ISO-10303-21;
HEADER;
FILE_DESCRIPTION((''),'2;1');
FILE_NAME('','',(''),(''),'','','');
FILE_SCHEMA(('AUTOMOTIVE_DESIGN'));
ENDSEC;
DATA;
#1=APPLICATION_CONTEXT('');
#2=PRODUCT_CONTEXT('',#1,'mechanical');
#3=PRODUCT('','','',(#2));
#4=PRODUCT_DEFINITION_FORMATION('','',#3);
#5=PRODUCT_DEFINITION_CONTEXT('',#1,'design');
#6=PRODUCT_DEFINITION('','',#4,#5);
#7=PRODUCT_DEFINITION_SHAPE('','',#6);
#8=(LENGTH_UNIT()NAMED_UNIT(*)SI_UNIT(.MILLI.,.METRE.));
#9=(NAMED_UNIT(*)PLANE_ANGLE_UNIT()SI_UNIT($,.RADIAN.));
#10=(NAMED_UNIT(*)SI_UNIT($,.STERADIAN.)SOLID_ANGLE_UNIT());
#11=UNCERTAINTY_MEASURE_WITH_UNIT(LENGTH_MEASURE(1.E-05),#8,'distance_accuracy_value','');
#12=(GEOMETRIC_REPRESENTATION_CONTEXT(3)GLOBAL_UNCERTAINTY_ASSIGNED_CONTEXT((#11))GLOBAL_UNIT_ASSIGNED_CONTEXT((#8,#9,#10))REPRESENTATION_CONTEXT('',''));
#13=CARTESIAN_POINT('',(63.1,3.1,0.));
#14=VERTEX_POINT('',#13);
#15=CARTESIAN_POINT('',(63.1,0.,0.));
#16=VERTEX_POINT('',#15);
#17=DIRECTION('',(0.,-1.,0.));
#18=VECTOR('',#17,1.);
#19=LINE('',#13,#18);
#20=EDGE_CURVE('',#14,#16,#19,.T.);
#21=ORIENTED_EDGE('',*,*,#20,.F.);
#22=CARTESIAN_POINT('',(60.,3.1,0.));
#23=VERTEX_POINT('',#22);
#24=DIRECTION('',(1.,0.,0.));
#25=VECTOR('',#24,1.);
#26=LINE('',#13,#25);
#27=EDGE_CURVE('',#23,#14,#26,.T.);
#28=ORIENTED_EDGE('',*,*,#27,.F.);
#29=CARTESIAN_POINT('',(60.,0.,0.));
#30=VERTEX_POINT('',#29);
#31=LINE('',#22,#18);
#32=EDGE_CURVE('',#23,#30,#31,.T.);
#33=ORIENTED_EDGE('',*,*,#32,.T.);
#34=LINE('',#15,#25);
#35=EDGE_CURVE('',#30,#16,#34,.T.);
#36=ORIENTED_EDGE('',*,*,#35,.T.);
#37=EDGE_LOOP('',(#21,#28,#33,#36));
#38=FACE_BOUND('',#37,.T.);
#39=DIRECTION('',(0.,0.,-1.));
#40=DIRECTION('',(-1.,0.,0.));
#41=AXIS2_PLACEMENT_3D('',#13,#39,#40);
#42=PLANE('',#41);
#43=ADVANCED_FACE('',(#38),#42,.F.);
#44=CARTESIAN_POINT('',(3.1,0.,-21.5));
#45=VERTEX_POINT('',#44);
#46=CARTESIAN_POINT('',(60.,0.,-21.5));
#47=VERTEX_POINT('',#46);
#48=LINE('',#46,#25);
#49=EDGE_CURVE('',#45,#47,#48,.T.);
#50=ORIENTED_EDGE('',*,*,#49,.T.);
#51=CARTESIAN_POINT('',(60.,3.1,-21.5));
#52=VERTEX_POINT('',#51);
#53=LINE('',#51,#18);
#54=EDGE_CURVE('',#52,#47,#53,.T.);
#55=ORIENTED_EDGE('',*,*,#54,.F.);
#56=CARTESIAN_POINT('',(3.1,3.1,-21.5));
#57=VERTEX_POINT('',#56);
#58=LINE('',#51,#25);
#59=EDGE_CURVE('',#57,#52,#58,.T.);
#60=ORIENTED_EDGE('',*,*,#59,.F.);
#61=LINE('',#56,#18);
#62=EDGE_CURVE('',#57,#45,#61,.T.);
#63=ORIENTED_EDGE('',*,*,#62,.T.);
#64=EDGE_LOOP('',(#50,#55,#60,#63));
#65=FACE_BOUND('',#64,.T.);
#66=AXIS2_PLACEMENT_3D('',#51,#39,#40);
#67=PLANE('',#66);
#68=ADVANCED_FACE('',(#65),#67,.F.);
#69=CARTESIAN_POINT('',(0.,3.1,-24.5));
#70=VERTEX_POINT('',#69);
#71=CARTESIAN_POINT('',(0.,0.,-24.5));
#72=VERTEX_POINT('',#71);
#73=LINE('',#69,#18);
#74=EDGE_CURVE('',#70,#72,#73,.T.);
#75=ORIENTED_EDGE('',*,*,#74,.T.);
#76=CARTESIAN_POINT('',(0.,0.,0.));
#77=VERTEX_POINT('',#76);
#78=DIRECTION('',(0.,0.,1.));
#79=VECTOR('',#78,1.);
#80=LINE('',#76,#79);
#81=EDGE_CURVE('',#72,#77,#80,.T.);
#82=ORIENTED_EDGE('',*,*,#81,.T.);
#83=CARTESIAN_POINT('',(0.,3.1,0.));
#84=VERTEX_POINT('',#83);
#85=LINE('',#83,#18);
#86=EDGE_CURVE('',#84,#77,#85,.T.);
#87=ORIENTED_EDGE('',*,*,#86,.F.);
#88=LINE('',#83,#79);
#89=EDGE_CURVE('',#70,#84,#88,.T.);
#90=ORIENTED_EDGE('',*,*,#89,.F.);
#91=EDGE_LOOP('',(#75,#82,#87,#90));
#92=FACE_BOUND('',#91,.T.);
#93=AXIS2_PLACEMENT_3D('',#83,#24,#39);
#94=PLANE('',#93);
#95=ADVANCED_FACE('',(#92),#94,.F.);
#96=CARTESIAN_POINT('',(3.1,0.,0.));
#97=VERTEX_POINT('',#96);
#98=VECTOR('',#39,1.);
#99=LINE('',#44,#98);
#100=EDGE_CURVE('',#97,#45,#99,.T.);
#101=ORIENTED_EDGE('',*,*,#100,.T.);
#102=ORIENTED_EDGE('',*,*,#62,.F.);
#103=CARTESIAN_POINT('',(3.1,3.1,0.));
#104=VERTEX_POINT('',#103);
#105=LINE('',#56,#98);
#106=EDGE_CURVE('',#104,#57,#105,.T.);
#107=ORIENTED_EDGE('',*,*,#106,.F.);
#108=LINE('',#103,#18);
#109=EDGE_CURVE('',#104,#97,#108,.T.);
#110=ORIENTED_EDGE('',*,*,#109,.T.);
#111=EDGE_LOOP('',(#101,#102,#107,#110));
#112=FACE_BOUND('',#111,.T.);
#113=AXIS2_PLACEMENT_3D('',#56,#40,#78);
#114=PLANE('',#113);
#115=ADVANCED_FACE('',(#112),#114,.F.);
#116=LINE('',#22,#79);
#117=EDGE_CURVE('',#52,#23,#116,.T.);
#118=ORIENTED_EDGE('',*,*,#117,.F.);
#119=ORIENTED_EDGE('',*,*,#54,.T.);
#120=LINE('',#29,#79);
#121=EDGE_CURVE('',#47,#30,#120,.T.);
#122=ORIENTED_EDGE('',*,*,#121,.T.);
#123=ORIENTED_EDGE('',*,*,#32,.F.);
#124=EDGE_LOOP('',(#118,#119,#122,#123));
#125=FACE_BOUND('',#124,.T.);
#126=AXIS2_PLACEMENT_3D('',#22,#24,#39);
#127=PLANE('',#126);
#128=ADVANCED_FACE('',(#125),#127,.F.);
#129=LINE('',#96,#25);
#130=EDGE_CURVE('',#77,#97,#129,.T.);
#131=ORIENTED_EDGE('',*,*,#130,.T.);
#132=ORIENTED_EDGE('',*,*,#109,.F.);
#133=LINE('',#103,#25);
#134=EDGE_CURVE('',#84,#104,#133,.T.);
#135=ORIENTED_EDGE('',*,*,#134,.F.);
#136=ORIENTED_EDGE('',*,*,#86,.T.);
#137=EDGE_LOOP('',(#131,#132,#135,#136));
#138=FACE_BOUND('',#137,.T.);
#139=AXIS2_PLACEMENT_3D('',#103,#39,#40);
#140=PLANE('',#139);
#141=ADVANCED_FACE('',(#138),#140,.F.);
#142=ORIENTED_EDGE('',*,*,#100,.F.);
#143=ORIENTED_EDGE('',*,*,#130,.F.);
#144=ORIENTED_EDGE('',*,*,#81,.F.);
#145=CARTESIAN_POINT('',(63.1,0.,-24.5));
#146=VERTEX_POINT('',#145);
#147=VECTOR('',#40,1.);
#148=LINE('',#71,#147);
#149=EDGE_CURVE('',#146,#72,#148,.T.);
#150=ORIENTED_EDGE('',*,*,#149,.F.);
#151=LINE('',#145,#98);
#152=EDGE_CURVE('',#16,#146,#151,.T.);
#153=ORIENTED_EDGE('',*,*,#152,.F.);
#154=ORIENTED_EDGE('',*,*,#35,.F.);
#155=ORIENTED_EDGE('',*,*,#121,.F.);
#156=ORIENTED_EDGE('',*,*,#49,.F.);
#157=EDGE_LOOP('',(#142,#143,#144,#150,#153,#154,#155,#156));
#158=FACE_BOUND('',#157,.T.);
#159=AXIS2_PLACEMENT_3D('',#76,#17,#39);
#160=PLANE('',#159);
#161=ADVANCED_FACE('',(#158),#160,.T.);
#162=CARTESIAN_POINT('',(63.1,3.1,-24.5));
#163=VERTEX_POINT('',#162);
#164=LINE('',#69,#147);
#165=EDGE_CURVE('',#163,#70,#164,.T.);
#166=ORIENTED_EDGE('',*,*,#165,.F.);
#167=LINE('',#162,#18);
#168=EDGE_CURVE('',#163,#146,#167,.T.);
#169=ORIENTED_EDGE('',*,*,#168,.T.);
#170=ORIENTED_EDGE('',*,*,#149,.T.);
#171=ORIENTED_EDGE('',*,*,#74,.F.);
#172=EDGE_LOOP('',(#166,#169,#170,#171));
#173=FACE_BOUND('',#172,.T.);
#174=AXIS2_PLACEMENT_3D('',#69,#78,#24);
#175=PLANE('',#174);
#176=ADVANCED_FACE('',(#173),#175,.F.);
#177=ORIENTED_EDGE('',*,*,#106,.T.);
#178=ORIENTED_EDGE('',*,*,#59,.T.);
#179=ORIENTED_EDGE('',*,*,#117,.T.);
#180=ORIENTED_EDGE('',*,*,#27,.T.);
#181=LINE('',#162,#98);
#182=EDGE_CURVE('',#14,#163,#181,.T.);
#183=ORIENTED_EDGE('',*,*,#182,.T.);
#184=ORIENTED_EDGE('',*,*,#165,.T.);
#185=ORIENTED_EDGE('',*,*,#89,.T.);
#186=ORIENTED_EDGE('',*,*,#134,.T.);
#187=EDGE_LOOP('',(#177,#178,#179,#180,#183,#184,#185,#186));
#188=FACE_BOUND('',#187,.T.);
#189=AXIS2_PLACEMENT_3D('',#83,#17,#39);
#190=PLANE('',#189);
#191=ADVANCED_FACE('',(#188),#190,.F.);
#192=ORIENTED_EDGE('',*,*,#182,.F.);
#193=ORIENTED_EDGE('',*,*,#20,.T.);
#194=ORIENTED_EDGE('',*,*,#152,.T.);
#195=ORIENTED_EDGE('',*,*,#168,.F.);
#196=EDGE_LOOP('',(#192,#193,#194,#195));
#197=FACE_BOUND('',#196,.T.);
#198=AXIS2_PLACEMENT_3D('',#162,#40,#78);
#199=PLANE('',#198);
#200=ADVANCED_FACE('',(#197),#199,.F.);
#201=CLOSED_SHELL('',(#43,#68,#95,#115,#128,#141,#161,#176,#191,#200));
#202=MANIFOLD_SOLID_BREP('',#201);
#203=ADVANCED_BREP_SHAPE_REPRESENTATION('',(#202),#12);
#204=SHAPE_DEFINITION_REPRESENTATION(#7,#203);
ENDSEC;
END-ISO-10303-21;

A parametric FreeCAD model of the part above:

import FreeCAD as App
import Part
import Sketcher
from FreeCAD import Vector
Q = App.Units.Quantity


def add_polygon(sketch, points):
    """Adds a closed chain of lines whose ends are joined by coincident constraints."""
    first, n = sketch.GeometryCount, len(points)
    for a, b in zip(points, points[1:] + points[:1]):
        sketch.addGeometry(Part.LineSegment(App.Vector(*a, 0), App.Vector(*b, 0)), False)
    for i in range(n):
        sketch.addConstraint(Sketcher.Constraint("Coincident", first + i, 2, first + (i + 1) % n, 1))

doc = App.newDocument("Part")
body = doc.addObject("PartDesign::Body", "Body")

sketch1 = body.newObject("Sketcher::SketchObject", "Sketch")
sketch1.AttachmentSupport = (doc.getObject("XZ_Plane"), [""])
sketch1.MapMode = "FlatFace"
add_polygon(sketch1, [(0, -24.5), (0, 0), (3.1, 0), (3.1, -21.5), (60, -21.5), (60, 0), (63.1, 0), (63.1, -24.5)])
sketch1.addConstraint(Sketcher.Constraint("Vertical", 0))
sketch1.addConstraint(Sketcher.Constraint("Horizontal", 1))
sketch1.addConstraint(Sketcher.Constraint("Vertical", 2))
sketch1.addConstraint(Sketcher.Constraint("Horizontal", 3))
sketch1.addConstraint(Sketcher.Constraint("Vertical", 4))
sketch1.addConstraint(Sketcher.Constraint("Horizontal", 5))
sketch1.addConstraint(Sketcher.Constraint("Vertical", 6))
sketch1.addConstraint(Sketcher.Constraint("Horizontal", 7))
sketch1.addConstraint(Sketcher.Constraint("Coincident", 0, 2, -1, 1))
sketch1.addConstraint(Sketcher.Constraint("PointOnObject", 4, 2, -1))
sketch1.addConstraint(Sketcher.Constraint("Equal", 1, 5))
sketch1.addConstraint(Sketcher.Constraint("DistanceX", 1, 1, 1, 2, Q("3.1 mm")))
sketch1.addConstraint(Sketcher.Constraint("DistanceX", 3, 1, 3, 2, Q("56.9 mm")))
sketch1.addConstraint(Sketcher.Constraint("DistanceY", 0, 1, 0, 2, Q("24.5 mm")))
sketch1.addConstraint(Sketcher.Constraint("DistanceY", 2, 2, 2, 1, Q("21.5 mm")))
pad1 = body.newObject("PartDesign::Pad", "Pad")
pad1.Profile = sketch1
pad1.Length = 3.1
pad1.Reversed = True

doc.recompute()
